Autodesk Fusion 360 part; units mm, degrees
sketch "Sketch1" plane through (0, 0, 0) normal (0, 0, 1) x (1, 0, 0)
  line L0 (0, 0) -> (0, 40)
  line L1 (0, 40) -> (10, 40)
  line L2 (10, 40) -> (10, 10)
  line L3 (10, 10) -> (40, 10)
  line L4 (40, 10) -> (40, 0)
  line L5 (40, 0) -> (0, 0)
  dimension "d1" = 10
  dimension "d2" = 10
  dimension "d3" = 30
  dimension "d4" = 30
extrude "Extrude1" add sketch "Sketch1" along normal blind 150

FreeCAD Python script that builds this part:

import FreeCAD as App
import Part
import Sketcher

V = App.Vector


def add_polygon(sketch, points):
    """Adds a closed chain of lines whose ends are joined by coincident constraints."""
    first, n = sketch.GeometryCount, len(points)
    for a, b in zip(points, points[1:] + points[:1]):
        sketch.addGeometry(Part.LineSegment(App.Vector(*a, 0), App.Vector(*b, 0)), False)
    for i in range(n):
        sketch.addConstraint(Sketcher.Constraint("Coincident", first + i, 2, first + (i + 1) % n, 1))

doc = App.newDocument("Part")
body = doc.addObject("PartDesign::Body", "Body")

sketch1 = body.newObject("Sketcher::SketchObject", "Sketch")
sketch1.AttachmentSupport = (doc.getObject("XY_Plane"), [""])
sketch1.MapMode = "FlatFace"
add_polygon(sketch1, [(0, 40), (0, 0), (40, 0), (40, 10), (10, 10), (10, 40)])
sketch1.addConstraint([
    Sketcher.Constraint("Vertical", 0),
    Sketcher.Constraint("Horizontal", 1),
    Sketcher.Constraint("Vertical", 2),
    Sketcher.Constraint("Horizontal", 3),
    Sketcher.Constraint("Vertical", 4),
    Sketcher.Constraint("Horizontal", 5),
    Sketcher.Constraint("Coincident", 0, 2, -1, 1),
    Sketcher.Constraint("Equal", 1, 0),
    Sketcher.Constraint("Equal", 5, 2),
    Sketcher.Constraint("DistanceX", 3, 2, 3, 1, 30.0),
    Sketcher.Constraint("DistanceX", 5, 2, 5, 1, 10.0),
])
pad1 = body.newObject("PartDesign::Pad", "Pad")
pad1.Profile = sketch1
pad1.Length = 150

doc.recompute()
